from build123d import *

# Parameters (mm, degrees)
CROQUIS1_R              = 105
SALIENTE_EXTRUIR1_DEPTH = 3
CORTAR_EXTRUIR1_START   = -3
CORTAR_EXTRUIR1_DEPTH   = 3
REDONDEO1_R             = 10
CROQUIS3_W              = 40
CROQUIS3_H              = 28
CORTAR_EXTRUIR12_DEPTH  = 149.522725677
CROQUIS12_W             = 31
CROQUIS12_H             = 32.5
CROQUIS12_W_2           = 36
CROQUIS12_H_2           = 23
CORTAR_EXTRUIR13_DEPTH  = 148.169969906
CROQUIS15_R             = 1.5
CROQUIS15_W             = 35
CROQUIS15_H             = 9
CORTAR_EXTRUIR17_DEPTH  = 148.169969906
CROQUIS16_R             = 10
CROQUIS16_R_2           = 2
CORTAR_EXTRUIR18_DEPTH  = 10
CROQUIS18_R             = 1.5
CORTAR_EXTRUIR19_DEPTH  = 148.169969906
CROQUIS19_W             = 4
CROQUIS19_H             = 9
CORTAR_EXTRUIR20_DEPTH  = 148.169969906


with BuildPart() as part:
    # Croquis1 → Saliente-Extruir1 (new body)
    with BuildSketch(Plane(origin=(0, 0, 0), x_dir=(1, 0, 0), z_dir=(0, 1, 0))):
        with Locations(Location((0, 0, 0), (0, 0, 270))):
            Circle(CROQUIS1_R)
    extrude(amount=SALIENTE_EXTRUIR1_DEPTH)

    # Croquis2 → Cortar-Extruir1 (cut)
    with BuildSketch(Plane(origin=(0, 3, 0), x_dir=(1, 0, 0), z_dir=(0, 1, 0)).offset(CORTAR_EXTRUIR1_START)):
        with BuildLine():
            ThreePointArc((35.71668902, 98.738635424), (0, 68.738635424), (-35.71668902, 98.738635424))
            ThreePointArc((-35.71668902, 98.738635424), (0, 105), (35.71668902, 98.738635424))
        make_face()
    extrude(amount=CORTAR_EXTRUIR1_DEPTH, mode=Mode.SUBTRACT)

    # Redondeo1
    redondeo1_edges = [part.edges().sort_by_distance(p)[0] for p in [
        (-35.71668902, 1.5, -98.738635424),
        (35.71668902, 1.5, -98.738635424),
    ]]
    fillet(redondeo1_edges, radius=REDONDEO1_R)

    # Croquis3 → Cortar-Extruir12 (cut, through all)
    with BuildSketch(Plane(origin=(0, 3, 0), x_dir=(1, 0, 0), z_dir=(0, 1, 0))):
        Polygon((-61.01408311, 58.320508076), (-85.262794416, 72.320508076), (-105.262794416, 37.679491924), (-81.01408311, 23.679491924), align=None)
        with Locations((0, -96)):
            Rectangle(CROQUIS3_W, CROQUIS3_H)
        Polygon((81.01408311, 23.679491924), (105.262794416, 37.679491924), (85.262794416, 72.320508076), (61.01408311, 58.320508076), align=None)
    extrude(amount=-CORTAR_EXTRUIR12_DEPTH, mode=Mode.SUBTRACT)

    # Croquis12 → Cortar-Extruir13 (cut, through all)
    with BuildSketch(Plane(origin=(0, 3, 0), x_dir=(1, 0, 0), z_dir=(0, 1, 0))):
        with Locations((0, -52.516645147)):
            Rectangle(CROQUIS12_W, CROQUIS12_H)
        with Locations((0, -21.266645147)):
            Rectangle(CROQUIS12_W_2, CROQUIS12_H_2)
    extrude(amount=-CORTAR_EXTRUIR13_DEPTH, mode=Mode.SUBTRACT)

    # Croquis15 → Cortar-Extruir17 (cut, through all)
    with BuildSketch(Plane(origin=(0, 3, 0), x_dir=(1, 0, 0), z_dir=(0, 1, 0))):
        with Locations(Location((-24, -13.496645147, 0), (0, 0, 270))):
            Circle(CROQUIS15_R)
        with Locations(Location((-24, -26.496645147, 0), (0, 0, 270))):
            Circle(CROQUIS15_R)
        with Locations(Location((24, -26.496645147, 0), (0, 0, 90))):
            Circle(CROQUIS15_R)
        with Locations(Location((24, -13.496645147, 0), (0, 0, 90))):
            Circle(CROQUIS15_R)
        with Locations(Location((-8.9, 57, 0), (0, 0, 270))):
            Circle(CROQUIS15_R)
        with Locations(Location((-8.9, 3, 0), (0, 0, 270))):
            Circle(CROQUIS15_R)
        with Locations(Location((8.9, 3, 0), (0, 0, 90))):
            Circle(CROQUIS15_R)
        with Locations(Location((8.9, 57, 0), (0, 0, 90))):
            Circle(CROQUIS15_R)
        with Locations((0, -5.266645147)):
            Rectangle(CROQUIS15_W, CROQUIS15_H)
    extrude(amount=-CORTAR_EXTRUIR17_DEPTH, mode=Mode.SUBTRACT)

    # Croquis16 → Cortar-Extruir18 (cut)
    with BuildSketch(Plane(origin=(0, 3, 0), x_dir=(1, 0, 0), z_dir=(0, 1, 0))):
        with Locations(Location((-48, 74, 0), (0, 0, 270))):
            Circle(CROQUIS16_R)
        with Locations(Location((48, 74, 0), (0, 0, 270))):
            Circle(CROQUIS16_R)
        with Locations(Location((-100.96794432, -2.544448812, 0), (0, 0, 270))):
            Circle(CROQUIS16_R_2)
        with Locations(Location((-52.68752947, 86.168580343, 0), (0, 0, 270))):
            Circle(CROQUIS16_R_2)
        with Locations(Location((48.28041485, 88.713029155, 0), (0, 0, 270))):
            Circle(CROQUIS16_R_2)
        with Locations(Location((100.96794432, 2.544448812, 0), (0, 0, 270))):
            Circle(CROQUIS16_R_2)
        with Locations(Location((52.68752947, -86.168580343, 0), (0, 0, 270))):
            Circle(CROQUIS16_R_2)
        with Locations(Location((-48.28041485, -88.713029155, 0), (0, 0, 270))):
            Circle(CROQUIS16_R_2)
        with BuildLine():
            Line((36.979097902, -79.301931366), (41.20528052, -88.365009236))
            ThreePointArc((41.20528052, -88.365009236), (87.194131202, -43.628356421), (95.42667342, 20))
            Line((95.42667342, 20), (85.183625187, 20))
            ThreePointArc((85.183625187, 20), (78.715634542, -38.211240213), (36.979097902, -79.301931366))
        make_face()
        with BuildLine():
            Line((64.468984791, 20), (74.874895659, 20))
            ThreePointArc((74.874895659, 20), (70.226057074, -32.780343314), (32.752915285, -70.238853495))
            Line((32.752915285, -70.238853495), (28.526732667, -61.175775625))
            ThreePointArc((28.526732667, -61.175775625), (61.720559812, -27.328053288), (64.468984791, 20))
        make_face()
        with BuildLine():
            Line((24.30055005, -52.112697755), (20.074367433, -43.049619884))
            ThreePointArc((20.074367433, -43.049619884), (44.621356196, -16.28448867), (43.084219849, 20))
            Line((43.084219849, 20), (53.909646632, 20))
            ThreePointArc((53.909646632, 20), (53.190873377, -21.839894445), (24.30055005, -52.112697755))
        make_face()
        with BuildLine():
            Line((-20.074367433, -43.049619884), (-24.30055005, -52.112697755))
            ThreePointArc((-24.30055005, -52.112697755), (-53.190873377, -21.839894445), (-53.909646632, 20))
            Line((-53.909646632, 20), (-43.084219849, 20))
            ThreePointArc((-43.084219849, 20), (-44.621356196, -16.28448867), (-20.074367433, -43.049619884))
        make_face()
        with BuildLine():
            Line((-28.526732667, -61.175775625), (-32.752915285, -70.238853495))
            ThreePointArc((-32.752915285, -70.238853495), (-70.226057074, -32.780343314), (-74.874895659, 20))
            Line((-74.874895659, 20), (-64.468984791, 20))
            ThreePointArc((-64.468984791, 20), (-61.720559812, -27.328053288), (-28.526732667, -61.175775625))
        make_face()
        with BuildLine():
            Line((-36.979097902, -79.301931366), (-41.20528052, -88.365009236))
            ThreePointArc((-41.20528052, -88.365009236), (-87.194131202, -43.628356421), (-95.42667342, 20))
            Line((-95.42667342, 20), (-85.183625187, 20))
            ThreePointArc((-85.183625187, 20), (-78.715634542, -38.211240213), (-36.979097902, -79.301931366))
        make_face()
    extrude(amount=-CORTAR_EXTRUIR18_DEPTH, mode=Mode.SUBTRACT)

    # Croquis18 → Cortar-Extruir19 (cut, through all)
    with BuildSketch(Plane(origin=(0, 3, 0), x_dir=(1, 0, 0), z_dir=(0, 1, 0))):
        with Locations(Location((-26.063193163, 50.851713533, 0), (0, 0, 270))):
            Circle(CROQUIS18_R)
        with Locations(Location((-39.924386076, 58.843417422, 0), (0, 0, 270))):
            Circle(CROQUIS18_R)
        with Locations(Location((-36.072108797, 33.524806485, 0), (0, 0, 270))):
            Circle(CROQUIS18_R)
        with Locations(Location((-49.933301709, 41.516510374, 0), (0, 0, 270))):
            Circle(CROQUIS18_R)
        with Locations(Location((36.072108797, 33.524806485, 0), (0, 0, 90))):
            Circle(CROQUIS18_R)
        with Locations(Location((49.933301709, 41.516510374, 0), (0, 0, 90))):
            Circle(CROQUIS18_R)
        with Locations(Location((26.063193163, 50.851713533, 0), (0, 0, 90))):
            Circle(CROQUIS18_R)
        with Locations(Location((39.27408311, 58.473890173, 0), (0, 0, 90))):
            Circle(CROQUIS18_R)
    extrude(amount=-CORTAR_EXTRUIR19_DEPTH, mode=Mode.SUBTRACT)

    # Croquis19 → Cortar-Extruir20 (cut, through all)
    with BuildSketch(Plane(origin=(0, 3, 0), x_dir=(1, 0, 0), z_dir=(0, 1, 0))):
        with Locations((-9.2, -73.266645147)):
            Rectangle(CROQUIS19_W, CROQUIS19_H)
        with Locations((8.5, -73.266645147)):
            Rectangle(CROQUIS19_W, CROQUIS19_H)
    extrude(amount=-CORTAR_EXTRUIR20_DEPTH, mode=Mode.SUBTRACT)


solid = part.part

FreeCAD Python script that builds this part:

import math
import FreeCAD as App
import Part
import Sketcher
Q = App.Units.Quantity


def edges_at(feature, points):
    """Names of the edges that pass closest to the given points."""
    edges = feature.Shape.Edges
    near = lambda p: min(range(len(edges)), key=lambda i: edges[i].distToShape(Part.Vertex(*p))[0])
    return sorted({f"Edge{near(p) + 1}" for p in points})

doc = App.newDocument("Part")
params = doc.addObject("Spreadsheet::Sheet", "Params")
for row, (alias, value) in enumerate([
    ("sketch1_diameter", "210 mm"),
    ("pad1_length", "3 mm"),
    ("sketch2_radius", "105 mm"),
    ("pocket1_length", "3 mm"),
    ("fillet_radius", "10 mm"),
    ("sketch3_width", "40 mm"),
    ("sketch3_height", "28 mm"),
    ("sketch3_length", "28 mm"),
    ("sketch3_length2", "40 mm"),
    ("sketch4_width", "31 mm"),
    ("sketch4_width2", "36 mm"),
    ("sketch4_height", "23 mm"),
    ("sketch4_height2", "32.5 mm"),
    ("sketch5_diameter", "3 mm"),
    ("sketch5_width", "35 mm"),
    ("sketch5_height", "9 mm"),
    ("sketch6_diameter", "20 mm"),
    ("sketch6_diameter2", "4 mm"),
    ("sketch6_radius", "97.5 mm"),
    ("sketch6_radius2", "87.5 mm"),
    ("sketch6_radius3", "67.5 mm"),
    ("pocket5_length", "10 mm"),
    ("sketch7_diameter", "3 mm"),
    ("sketch8_width", "4 mm"),
    ("sketch8_height", "9 mm"),
], start=1):
    params.set(f"A{row}", alias)
    params.set(f"B{row}", "=" + value)
    params.setAlias(f"B{row}", alias)

body = doc.addObject("PartDesign::Body", "Body")

# Sketch on XZ plane
sketch1 = body.newObject("Sketcher::SketchObject", "Sketch")
sketch1.AttachmentSupport = (doc.getObject("XZ_Plane"), [""])
sketch1.MapMode = "FlatFace"
sketch1.addGeometry(Part.Circle(App.Vector(0, 0, 0), App.Vector(0, 0, 1), 105), False)
sketch1.addConstraint([
    Sketcher.Constraint("Coincident", 0, 3, -1, 1),
    Sketcher.Constraint("Diameter", 0, Q("210 mm")),
])
sketch1.setExpression("Constraints[1]", "Params.sketch1_diameter")
pad1 = body.newObject("PartDesign::Pad", "Pad")
pad1.Profile = sketch1
pad1.setExpression("Length", "Params.pad1_length")
pad1.Reversed = True

# Sketch on XZ plane
sketch2 = body.newObject("Sketcher::SketchObject", "Sketch001")
sketch2.AttachmentSupport = (doc.getObject("XZ_Plane"), [""])
sketch2.MapMode = "FlatFace"
sketch2.addGeometry([
    Part.ArcOfCircle(Part.Circle(App.Vector(0, -105, 0), App.Vector(0, 0, 1), 36.261365), math.radians(9.943279), math.radians(170.056721)),
    Part.ArcOfCircle(Part.Circle(App.Vector(0, 0, 0), App.Vector(0, 0, 1), 105), math.radians(-109.886558), math.radians(-70.113442)),
], False)
sketch2.addConstraint([
    Sketcher.Constraint("Coincident", 0, 1, 1, 2),
    Sketcher.Constraint("Coincident", 1, 1, 0, 2),
    Sketcher.Constraint("Coincident", 1, 3, -1, 1),
    Sketcher.Constraint("PointOnObject", 0, 3, -2),
    Sketcher.Constraint("Radius", 1, Q("105 mm")),
    Sketcher.Constraint("DistanceY", 0, 3, -1, 1, Q("105 mm")),
    Sketcher.Constraint("Radius", 0, Q("36.261365 mm")),
])
sketch2.setExpression("Constraints[4]", "Params.sketch2_radius")
pocket1 = body.newObject("PartDesign::Pocket", "Pocket")
pocket1.Profile = sketch2
pocket1.setExpression("Length", "Params.pocket1_length")
doc.recompute()

fillet = body.newObject("PartDesign::Fillet", "Fillet")
fillet.Base = (pocket1, edges_at(pocket1, [(-35.717, 1.5, -98.739), (35.717, 1.5, -98.739)]))
fillet.setExpression("Radius", "Params.fillet_radius")

# Sketch on XZ plane
sketch3 = body.newObject("Sketcher::SketchObject", "Sketch002")
sketch3.AttachmentSupport = (doc.getObject("XZ_Plane"), [""])
sketch3.MapMode = "FlatFace"
sketch3.AttachmentOffset = App.Placement(App.Vector(0, 0, -3), App.Rotation())
sketch3.addGeometry([
    Part.LineSegment(App.Vector(-61.014083, -58.320508, 0), App.Vector(-85.262794, -72.320508, 0)),  # 0
    Part.LineSegment(App.Vector(-85.262794, -72.320508, 0), App.Vector(-105.262794, -37.679492, 0)),  # 1
    Part.LineSegment(App.Vector(-105.262794, -37.679492, 0), App.Vector(-81.014083, -23.679492, 0)),  # 2
    Part.LineSegment(App.Vector(-81.014083, -23.679492, 0), App.Vector(-61.014083, -58.320508, 0)),  # 3
    Part.LineSegment(App.Vector(-20, 82, 0), App.Vector(-20, 110, 0)),  # 4
    Part.LineSegment(App.Vector(-20, 110, 0), App.Vector(20, 110, 0)),  # 5
    Part.LineSegment(App.Vector(20, 110, 0), App.Vector(20, 82, 0)),  # 6
    Part.LineSegment(App.Vector(20, 82, 0), App.Vector(-20, 82, 0)),  # 7
    Part.LineSegment(App.Vector(81.014083, -23.679492, 0), App.Vector(105.262794, -37.679492, 0)),  # 8
    Part.LineSegment(App.Vector(105.262794, -37.679492, 0), App.Vector(85.262794, -72.320508, 0)),  # 9
    Part.LineSegment(App.Vector(85.262794, -72.320508, 0), App.Vector(61.014083, -58.320508, 0)),  # 10
    Part.LineSegment(App.Vector(61.014083, -58.320508, 0), App.Vector(81.014083, -23.679492, 0)),  # 11
], False)
sketch3.addConstraint([
    Sketcher.Constraint("Coincident", 0, 2, 1, 1),
    Sketcher.Constraint("Coincident", 1, 2, 2, 1),
    Sketcher.Constraint("Coincident", 2, 2, 3, 1),
    Sketcher.Constraint("Coincident", 3, 2, 0, 1),
    Sketcher.Constraint("Coincident", 4, 2, 5, 1),
    Sketcher.Constraint("Coincident", 5, 2, 6, 1),
    Sketcher.Constraint("Coincident", 6, 2, 7, 1),
    Sketcher.Constraint("Coincident", 7, 2, 4, 1),
    Sketcher.Constraint("Coincident", 8, 2, 9, 1),
    Sketcher.Constraint("Coincident", 9, 2, 10, 1),
    Sketcher.Constraint("Coincident", 10, 2, 11, 1),
    Sketcher.Constraint("Coincident", 11, 2, 8, 1),
    Sketcher.Constraint("Vertical", 4),
    Sketcher.Constraint("Horizontal", 5),
    Sketcher.Constraint("Vertical", 6),
    Sketcher.Constraint("Horizontal", 7),
    Sketcher.Constraint("Symmetric", 1, 2, 8, 2, -2),
    Sketcher.Constraint("Symmetric", 0, 2, 9, 2, -2),
    Sketcher.Constraint("Symmetric", 3, 2, 10, 2, -2),
    Sketcher.Constraint("Symmetric", 2, 2, 11, 2, -2),
    Sketcher.Constraint("Perpendicular", 0, 1),
    Sketcher.Constraint("Perpendicular", 1, 2),
    Sketcher.Constraint("Perpendicular", 2, 3),
    Sketcher.Constraint("DistanceX", 5, 1, 5, 2, Q("40 mm")),
    Sketcher.Constraint("DistanceY", 4, 1, 4, 2, Q("28 mm")),
    Sketcher.Constraint("Angle", 0, Q("-150 deg")),
    Sketcher.Constraint("Distance", 0, Q("28 mm")),
    Sketcher.Constraint("Distance", 1, Q("40 mm")),
    Sketcher.Constraint("DistanceX", 4, 2, -1, 1, Q("20 mm")),
    Sketcher.Constraint("DistanceY", -1, 1, 4, 2, Q("110 mm")),
    Sketcher.Constraint("DistanceY", 0, 2, -1, 1, Q("72.320508 mm")),
    Sketcher.Constraint("DistanceX", 0, 2, 9, 2, Q("170.525589 mm")),
])
sketch3.setExpression("Constraints[23]", "Params.sketch3_width")
sketch3.setExpression("Constraints[24]", "Params.sketch3_height")
sketch3.setExpression("Constraints[26]", "Params.sketch3_length")
sketch3.setExpression("Constraints[27]", "Params.sketch3_length2")
pocket2 = body.newObject("PartDesign::Pocket", "Pocket001")
pocket2.Profile = sketch3
pocket2.Type = "ThroughAll"
pocket2.Reversed = True

# Sketch on XZ plane
sketch4 = body.newObject("Sketcher::SketchObject", "Sketch003")
sketch4.AttachmentSupport = (doc.getObject("XZ_Plane"), [""])
sketch4.MapMode = "FlatFace"
sketch4.AttachmentOffset = App.Placement(App.Vector(0, 0, -3), App.Rotation())
sketch4.addGeometry([
    Part.LineSegment(App.Vector(-15.5, 36.266645, 0), App.Vector(-15.5, 68.766645, 0)),  # 0
    Part.LineSegment(App.Vector(-15.5, 68.766645, 0), App.Vector(15.5, 68.766645, 0)),  # 1
    Part.LineSegment(App.Vector(15.5, 68.766645, 0), App.Vector(15.5, 36.266645, 0)),  # 2
    Part.LineSegment(App.Vector(15.5, 36.266645, 0), App.Vector(-15.5, 36.266645, 0)),  # 3
    Part.LineSegment(App.Vector(-18, 9.766645, 0), App.Vector(-18, 32.766645, 0)),  # 4
    Part.LineSegment(App.Vector(-18, 32.766645, 0), App.Vector(18, 32.766645, 0)),  # 5
    Part.LineSegment(App.Vector(18, 32.766645, 0), App.Vector(18, 9.766645, 0)),  # 6
    Part.LineSegment(App.Vector(18, 9.766645, 0), App.Vector(-18, 9.766645, 0)),  # 7
], False)
sketch4.addConstraint([
    Sketcher.Constraint("Coincident", 0, 2, 1, 1),
    Sketcher.Constraint("Coincident", 1, 2, 2, 1),
    Sketcher.Constraint("Coincident", 2, 2, 3, 1),
    Sketcher.Constraint("Coincident", 3, 2, 0, 1),
    Sketcher.Constraint("Coincident", 4, 2, 5, 1),
    Sketcher.Constraint("Coincident", 5, 2, 6, 1),
    Sketcher.Constraint("Coincident", 6, 2, 7, 1),
    Sketcher.Constraint("Coincident", 7, 2, 4, 1),
    Sketcher.Constraint("Vertical", 0),
    Sketcher.Constraint("Horizontal", 1),
    Sketcher.Constraint("Vertical", 2),
    Sketcher.Constraint("Horizontal", 3),
    Sketcher.Constraint("Vertical", 4),
    Sketcher.Constraint("Horizontal", 5),
    Sketcher.Constraint("Vertical", 6),
    Sketcher.Constraint("Horizontal", 7),
    Sketcher.Constraint("DistanceX", 1, 1, 1, 2, Q("31 mm")),
    Sketcher.Constraint("DistanceX", 5, 1, 5, 2, Q("36 mm")),
    Sketcher.Constraint("DistanceY", 4, 1, 4, 2, Q("23 mm")),
    Sketcher.Constraint("DistanceY", 0, 1, 0, 2, Q("32.5 mm")),
    Sketcher.Constraint("DistanceX", 4, 2, -1, 1, Q("18 mm")),
    Sketcher.Constraint("DistanceY", 4, 2, 0, 2, Q("36 mm")),
    Sketcher.Constraint("DistanceX", 0, 2, -1, 1, Q("15.5 mm")),
    Sketcher.Constraint("DistanceY", -1, 1, 0, 2, Q("68.766645 mm")),
])
sketch4.setExpression("Constraints[16]", "Params.sketch4_width")
sketch4.setExpression("Constraints[17]", "Params.sketch4_width2")
sketch4.setExpression("Constraints[18]", "Params.sketch4_height")
sketch4.setExpression("Constraints[19]", "Params.sketch4_height2")
pocket3 = body.newObject("PartDesign::Pocket", "Pocket002")
pocket3.Profile = sketch4
pocket3.Type = "ThroughAll"
pocket3.Reversed = True

# Sketch on XZ plane
sketch5 = body.newObject("Sketcher::SketchObject", "Sketch004")
sketch5.AttachmentSupport = (doc.getObject("XZ_Plane"), [""])
sketch5.MapMode = "FlatFace"
sketch5.AttachmentOffset = App.Placement(App.Vector(0, 0, -3), App.Rotation())
sketch5.addGeometry([
    Part.Circle(App.Vector(-24, 13.496645, 0), App.Vector(0, 0, 1), 1.5),  # 0
    Part.Circle(App.Vector(-24, 26.496645, 0), App.Vector(0, 0, 1), 1.5),  # 1
    Part.Circle(App.Vector(24, 26.496645, 0), App.Vector(0, 0, 1), 1.5),  # 2
    Part.Circle(App.Vector(24, 13.496645, 0), App.Vector(0, 0, 1), 1.5),  # 3
    Part.Circle(App.Vector(-8.9, -57, 0), App.Vector(0, 0, 1), 1.5),  # 4
    Part.Circle(App.Vector(-8.9, -3, 0), App.Vector(0, 0, 1), 1.5),  # 5
    Part.Circle(App.Vector(8.9, -3, 0), App.Vector(0, 0, 1), 1.5),  # 6
    Part.Circle(App.Vector(8.9, -57, 0), App.Vector(0, 0, 1), 1.5),  # 7
    Part.LineSegment(App.Vector(-17.5, 0.766645, 0), App.Vector(-17.5, 9.766645, 0)),  # 8
    Part.LineSegment(App.Vector(-17.5, 9.766645, 0), App.Vector(17.5, 9.766645, 0)),  # 9
    Part.LineSegment(App.Vector(17.5, 9.766645, 0), App.Vector(17.5, 0.766645, 0)),  # 10
    Part.LineSegment(App.Vector(17.5, 0.766645, 0), App.Vector(-17.5, 0.766645, 0)),  # 11
], False)
sketch5.addConstraint([
    Sketcher.Constraint("Coincident", 8, 2, 9, 1),
    Sketcher.Constraint("Coincident", 9, 2, 10, 1),
    Sketcher.Constraint("Coincident", 10, 2, 11, 1),
    Sketcher.Constraint("Coincident", 11, 2, 8, 1),
    Sketcher.Constraint("Vertical", 8),
    Sketcher.Constraint("Horizontal", 9),
    Sketcher.Constraint("Vertical", 10),
    Sketcher.Constraint("Horizontal", 11),
    Sketcher.Constraint("Equal", 0, 1),
    Sketcher.Constraint("Equal", 1, 2),
    Sketcher.Constraint("Equal", 2, 3),
    Sketcher.Constraint("Equal", 3, 4),
    Sketcher.Constraint("Equal", 4, 5),
    Sketcher.Constraint("Equal", 5, 6),
    Sketcher.Constraint("Equal", 6, 7),
    Sketcher.Constraint("Symmetric", 1, 3, 2, 3, -2),
    Sketcher.Constraint("Symmetric", 0, 3, 3, 3, -2),
    Sketcher.Constraint("Symmetric", 5, 3, 6, 3, -2),
    Sketcher.Constraint("Symmetric", 4, 3, 7, 3, -2),
    Sketcher.Constraint("Vertical", 0, 3, 1, 3),
    Sketcher.Constraint("Vertical", 4, 3, 5, 3),
    Sketcher.Constraint("Diameter", 0, Q("3 mm")),
    Sketcher.Constraint("DistanceX", 9, 1, 9, 2, Q("35 mm")),
    Sketcher.Constraint("DistanceY", 8, 1, 8, 2, Q("9 mm")),
    Sketcher.Constraint("DistanceX", 0, 3, -1, 1, Q("24 mm")),
    Sketcher.Constraint("DistanceY", 4, 3, -1, 1, Q("57 mm")),
    Sketcher.Constraint("DistanceY", 5, 3, -1, 1, Q("3 mm")),
    Sketcher.Constraint("DistanceY", 0, 3, 1, 3, Q("13 mm")),
    Sketcher.Constraint("DistanceX", 4, 3, -1, 1, Q("8.9 mm")),
    Sketcher.Constraint("DistanceX", 8, 2, -1, 1, Q("17.5 mm")),
    Sketcher.Constraint("DistanceY", 8, 2, 0, 3, Q("3.73 mm")),
    Sketcher.Constraint("DistanceY", -1, 1, 0, 3, Q("13.496645 mm")),
])
sketch5.setExpression("Constraints[21]", "Params.sketch5_diameter")
sketch5.setExpression("Constraints[22]", "Params.sketch5_width")
sketch5.setExpression("Constraints[23]", "Params.sketch5_height")
pocket4 = body.newObject("PartDesign::Pocket", "Pocket003")
pocket4.Profile = sketch5
pocket4.Type = "ThroughAll"
pocket4.Reversed = True

# Sketch on XZ plane
sketch6 = body.newObject("Sketcher::SketchObject", "Sketch005")
sketch6.AttachmentSupport = (doc.getObject("XZ_Plane"), [""])
sketch6.MapMode = "FlatFace"
sketch6.AttachmentOffset = App.Placement(App.Vector(0, 0, -3), App.Rotation())
sketch6.addGeometry([
    Part.Circle(App.Vector(-48, -74, 0), App.Vector(0, 0, 1), 10),  # 0
    Part.Circle(App.Vector(48, -74, 0), App.Vector(0, 0, 1), 10),  # 1
    Part.Circle(App.Vector(-100.967944, 2.544449, 0), App.Vector(0, 0, 1), 2),  # 2
    Part.Circle(App.Vector(-52.687529, -86.16858, 0), App.Vector(0, 0, 1), 2),  # 3
    Part.Circle(App.Vector(48.280415, -88.713029, 0), App.Vector(0, 0, 1), 2),  # 4
    Part.Circle(App.Vector(100.967944, -2.544449, 0), App.Vector(0, 0, 1), 2),  # 5
    Part.Circle(App.Vector(52.687529, 86.16858, 0), App.Vector(0, 0, 1), 2),  # 6
    Part.Circle(App.Vector(-48.280415, 88.713029, 0), App.Vector(0, 0, 1), 2),  # 7
    Part.LineSegment(App.Vector(36.979098, 79.301931, 0), App.Vector(41.205281, 88.365009, 0)),  # 8
    Part.ArcOfCircle(Part.Circle(App.Vector(0, 0, 0), App.Vector(0, 0, 1), 97.5), math.radians(-11.837004), math.radians(65)),  # 9
    Part.LineSegment(App.Vector(95.426673, -20, 0), App.Vector(85.183625, -20, 0)),  # 10
    Part.ArcOfCircle(Part.Circle(App.Vector(0, 0, 0), App.Vector(0, 0, 1), 87.5), math.radians(-13.21298), math.radians(65)),  # 11
    Part.LineSegment(App.Vector(74.874896, -20, 0), App.Vector(64.468985, -20, 0)),  # 12
    Part.ArcOfCircle(Part.Circle(App.Vector(0, 0, 0), App.Vector(0, 0, 1), 67.5), math.radians(-17.235285), math.radians(65)),  # 13
    Part.LineSegment(App.Vector(28.526733, 61.175776, 0), App.Vector(32.752915, 70.238853, 0)),  # 14
    Part.ArcOfCircle(Part.Circle(App.Vector(0, 0, 0), App.Vector(0, 0, 1), 77.5), math.radians(-14.955248), math.radians(65)),  # 15
    Part.LineSegment(App.Vector(20.074367, 43.04962, 0), App.Vector(24.30055, 52.112698, 0)),  # 16
    Part.ArcOfCircle(Part.Circle(App.Vector(0, 0, 0), App.Vector(0, 0, 1), 57.5), math.radians(-20.354406), math.radians(65)),  # 17
    Part.LineSegment(App.Vector(53.909647, -20, 0), App.Vector(43.08422, -20, 0)),  # 18
    Part.ArcOfCircle(Part.Circle(App.Vector(0, 0, 0), App.Vector(0, 0, 1), 47.5), math.radians(-24.901062), math.radians(65)),  # 19
    Part.LineSegment(App.Vector(-24.30055, 52.112698, 0), App.Vector(-20.074367, 43.04962, 0)),  # 20
    Part.ArcOfCircle(Part.Circle(App.Vector(0, 0, 0), App.Vector(0, 0, 1), 47.5), math.radians(115), math.radians(204.901062)),  # 21
    Part.LineSegment(App.Vector(-43.08422, -20, 0), App.Vector(-53.909647, -20, 0)),  # 22
    Part.ArcOfCircle(Part.Circle(App.Vector(0, 0, 0), App.Vector(0, 0, 1), 57.5), math.radians(115), math.radians(200.354406)),  # 23
    Part.LineSegment(App.Vector(-32.752915, 70.238853, 0), App.Vector(-28.526733, 61.175776, 0)),  # 24
    Part.ArcOfCircle(Part.Circle(App.Vector(0, 0, 0), App.Vector(0, 0, 1), 67.5), math.radians(115), math.radians(197.235285)),  # 25
    Part.LineSegment(App.Vector(-64.468985, -20, 0), App.Vector(-74.874896, -20, 0)),  # 26
    Part.ArcOfCircle(Part.Circle(App.Vector(0, 0, 0), App.Vector(0, 0, 1), 77.5), math.radians(115), math.radians(194.955248)),  # 27
    Part.LineSegment(App.Vector(-41.205281, 88.365009, 0), App.Vector(-36.979098, 79.301931, 0)),  # 28
    Part.ArcOfCircle(Part.Circle(App.Vector(0, 0, 0), App.Vector(0, 0, 1), 87.5), math.radians(115), math.radians(193.21298)),  # 29
    Part.LineSegment(App.Vector(-85.183625, -20, 0), App.Vector(-95.426673, -20, 0)),  # 30
    Part.ArcOfCircle(Part.Circle(App.Vector(0, 0, 0), App.Vector(0, 0, 1), 97.5), math.radians(115), math.radians(191.837004)),  # 31
], False)
sketch6.addConstraint([
    Sketcher.Constraint("Coincident", 8, 2, 9, 2),
    Sketcher.Constraint("Coincident", 9, 1, 10, 1),
    Sketcher.Constraint("Coincident", 10, 2, 11, 1),
    Sketcher.Constraint("Coincident", 11, 2, 8, 1),
    Sketcher.Constraint("Coincident", 12, 2, 13, 1),
    Sketcher.Constraint("Coincident", 13, 2, 14, 1),
    Sketcher.Constraint("Coincident", 14, 2, 15, 2),
    Sketcher.Constraint("Coincident", 15, 1, 12, 1),
    Sketcher.Constraint("Coincident", 16, 2, 17, 2),
    Sketcher.Constraint("Coincident", 17, 1, 18, 1),
    Sketcher.Constraint("Coincident", 18, 2, 19, 1),
    Sketcher.Constraint("Coincident", 19, 2, 16, 1),
    Sketcher.Constraint("Coincident", 20, 2, 21, 1),
    Sketcher.Constraint("Coincident", 21, 2, 22, 1),
    Sketcher.Constraint("Coincident", 22, 2, 23, 2),
    Sketcher.Constraint("Coincident", 23, 1, 20, 1),
    Sketcher.Constraint("Coincident", 24, 2, 25, 1),
    Sketcher.Constraint("Coincident", 25, 2, 26, 1),
    Sketcher.Constraint("Coincident", 26, 2, 27, 2),
    Sketcher.Constraint("Coincident", 27, 1, 24, 1),
    Sketcher.Constraint("Coincident", 28, 2, 29, 1),
    Sketcher.Constraint("Coincident", 29, 2, 30, 1),
    Sketcher.Constraint("Coincident", 30, 2, 31, 2),
    Sketcher.Constraint("Coincident", 31, 1, 28, 1),
    Sketcher.Constraint("Horizontal", 10),
    Sketcher.Constraint("Horizontal", 12),
    Sketcher.Constraint("Horizontal", 18),
    Sketcher.Constraint("Horizontal", 22),
    Sketcher.Constraint("Horizontal", 26),
    Sketcher.Constraint("Horizontal", 30),
    Sketcher.Constraint("Coincident", 9, 3, -1, 1),
    Sketcher.Constraint("Coincident", 11, 3, -1, 1),
    Sketcher.Constraint("Coincident", 13, 3, -1, 1),
    Sketcher.Constraint("Coincident", 15, 3, -1, 1),
    Sketcher.Constraint("Coincident", 17, 3, -1, 1),
    Sketcher.Constraint("Coincident", 19, 3, -1, 1),
    Sketcher.Constraint("Coincident", 21, 3, -1, 1),
    Sketcher.Constraint("Coincident", 23, 3, -1, 1),
    Sketcher.Constraint("Coincident", 25, 3, -1, 1),
    Sketcher.Constraint("Coincident", 27, 3, -1, 1),
    Sketcher.Constraint("Coincident", 29, 3, -1, 1),
    Sketcher.Constraint("Coincident", 31, 3, -1, 1),
    Sketcher.Constraint("Equal", 0, 1),
    Sketcher.Constraint("Equal", 2, 3),
    Sketcher.Constraint("Equal", 3, 4),
    Sketcher.Constraint("Equal", 4, 5),
    Sketcher.Constraint("Equal", 5, 6),
    Sketcher.Constraint("Equal", 6, 7),
    Sketcher.Constraint("Equal", 19, 21),
    Sketcher.Constraint("Equal", 17, 23),
    Sketcher.Constraint("Equal", 13, 25),
    Sketcher.Constraint("Equal", 15, 27),
    Sketcher.Constraint("Equal", 11, 29),
    Sketcher.Constraint("Equal", 9, 31),
    Sketcher.Constraint("Symmetric", 2, 3, 5, 3, -1, 1),
    Sketcher.Constraint("Symmetric", 3, 3, 6, 3, -1, 1),
    Sketcher.Constraint("Symmetric", 4, 3, 7, 3, -1, 1),
    Sketcher.Constraint("Symmetric", 0, 3, 1, 3, -2),
    Sketcher.Constraint("Parallel", 8, 14),
    Sketcher.Constraint("Parallel", 14, 16),
    Sketcher.Constraint("Parallel", 20, 24),
    Sketcher.Constraint("Parallel", 24, 28),
    Sketcher.Constraint("Horizontal", 10, 2, 12, 2),
    Sketcher.Constraint("Horizontal", 15, 1, 17, 1),
    Sketcher.Constraint("Horizontal", 19, 2, 20, 2),
    Sketcher.Constraint("Horizontal", 18, 2, 21, 2),
    Sketcher.Constraint("Horizontal", 16, 2, 23, 1),
    Sketcher.Constraint("Horizontal", 13, 2, 24, 2),
    Sketcher.Constraint("Horizontal", 22, 2, 25, 2),
    Sketcher.Constraint("Horizontal", 11, 2, 28, 2),
    Sketcher.Constraint("Horizontal", 26, 2, 29, 2),
    Sketcher.Constraint("Equal", 8, 14),
    Sketcher.Constraint("Equal", 14, 16),
    Sketcher.Constraint("Diameter", 0, Q("20 mm")),
    Sketcher.Constraint("Diameter", 2, Q("4 mm")),
    Sketcher.Constraint("Radius", 9, Q("97.5 mm")),
    Sketcher.Constraint("Radius", 11, Q("87.5 mm")),
    Sketcher.Constraint("Radius", 13, Q("67.5 mm")),
    Sketcher.Constraint("Radius", 17, Q("57.5 mm")),
    Sketcher.Constraint("Angle", 8, Q("65 deg")),
    Sketcher.Constraint("DistanceX", 0, 3, -1, 1, Q("48 mm")),
    Sketcher.Constraint("DistanceY", 0, 3, -1, 1, Q("74 mm")),
    Sketcher.Constraint("DistanceY", 9, 1, -1, 1, Q("20 mm")),
    Sketcher.Constraint("DistanceX", 23, 1, 16, 2, Q("48.6011 mm")),
    Sketcher.Constraint("DistanceX", 24, 2, 19, 2, Q("48.6011 mm")),
    Sketcher.Constraint("DistanceX", 7, 3, 27, 1, Q("15.5275 mm")),
    Sketcher.Constraint("DistanceY", -1, 1, 2, 3, Q("2.544449 mm")),
    Sketcher.Constraint("DistanceX", 3, 3, -1, 1, Q("52.687529 mm")),
    Sketcher.Constraint("DistanceY", 3, 3, -1, 1, Q("86.16858 mm")),
    Sketcher.Constraint("DistanceY", 4, 3, -1, 1, Q("88.713029 mm")),
    Sketcher.Constraint("DistanceX", -1, 1, 8, 2, Q("41.205281 mm")),
    Sketcher.Constraint("DistanceX", 2, 3, 4, 3, Q("149.248359 mm")),
])
sketch6.setExpression("Constraints[73]", "Params.sketch6_diameter")
sketch6.setExpression("Constraints[74]", "Params.sketch6_diameter2")
sketch6.setExpression("Constraints[75]", "Params.sketch6_radius")
sketch6.setExpression("Constraints[76]", "Params.sketch6_radius2")
sketch6.setExpression("Constraints[77]", "Params.sketch6_radius3")
pocket5 = body.newObject("PartDesign::Pocket", "Pocket004")
pocket5.Profile = sketch6
pocket5.setExpression("Length", "Params.pocket5_length")
pocket5.Reversed = True

# Sketch on XZ plane
sketch7 = body.newObject("Sketcher::SketchObject", "Sketch006")
sketch7.AttachmentSupport = (doc.getObject("XZ_Plane"), [""])
sketch7.MapMode = "FlatFace"
sketch7.AttachmentOffset = App.Placement(App.Vector(0, 0, -3), App.Rotation())
sketch7.addGeometry([
    Part.Circle(App.Vector(-26.063193, -50.851714, 0), App.Vector(0, 0, 1), 1.5),  # 0
    Part.Circle(App.Vector(-39.924386, -58.843417, 0), App.Vector(0, 0, 1), 1.5),  # 1
    Part.Circle(App.Vector(-36.072109, -33.524806, 0), App.Vector(0, 0, 1), 1.5),  # 2
    Part.Circle(App.Vector(-49.933302, -41.51651, 0), App.Vector(0, 0, 1), 1.5),  # 3
    Part.Circle(App.Vector(36.072109, -33.524806, 0), App.Vector(0, 0, 1), 1.5),  # 4
    Part.Circle(App.Vector(49.933302, -41.51651, 0), App.Vector(0, 0, 1), 1.5),  # 5
    Part.Circle(App.Vector(26.063193, -50.851714, 0), App.Vector(0, 0, 1), 1.5),  # 6
    Part.Circle(App.Vector(39.274083, -58.47389, 0), App.Vector(0, 0, 1), 1.5),  # 7
], False)
sketch7.addConstraint([
    Sketcher.Constraint("Equal", 0, 1),
    Sketcher.Constraint("Equal", 1, 2),
    Sketcher.Constraint("Equal", 2, 3),
    Sketcher.Constraint("Equal", 3, 4),
    Sketcher.Constraint("Equal", 4, 5),
    Sketcher.Constraint("Equal", 5, 6),
    Sketcher.Constraint("Equal", 6, 7),
    Sketcher.Constraint("Symmetric", 2, 3, 4, 3, -2),
    Sketcher.Constraint("Symmetric", 3, 3, 5, 3, -2),
    Sketcher.Constraint("Symmetric", 0, 3, 6, 3, -2),
    Sketcher.Constraint("Diameter", 0, Q("3 mm")),
    Sketcher.Constraint("DistanceX", 3, 3, -1, 1, Q("49.933302 mm")),
    Sketcher.Constraint("DistanceX", 0, 3, 4, 3, Q("62.135302 mm")),
    Sketcher.Constraint("DistanceX", 2, 3, -1, 1, Q("36.072109 mm")),
    Sketcher.Constraint("DistanceY", 3, 3, -1, 1, Q("41.51651 mm")),
    Sketcher.Constraint("DistanceY", 7, 3, -1, 1, Q("58.47389 mm")),
    Sketcher.Constraint("DistanceY", 1, 3, 2, 3, Q("25.318611 mm")),
    Sketcher.Constraint("DistanceX", 1, 3, 6, 3, Q("65.987579 mm")),
    Sketcher.Constraint("DistanceX", 6, 3, 7, 3, Q("13.21089 mm")),
    Sketcher.Constraint("DistanceY", 0, 3, -1, 1, Q("50.851714 mm")),
    Sketcher.Constraint("DistanceY", 1, 3, -1, 1, Q("58.843417 mm")),
])
sketch7.setExpression("Constraints[10]", "Params.sketch7_diameter")
pocket6 = body.newObject("PartDesign::Pocket", "Pocket005")
pocket6.Profile = sketch7
pocket6.Type = "ThroughAll"
pocket6.Reversed = True

# Sketch on XZ plane
sketch8 = body.newObject("Sketcher::SketchObject", "Sketch007")
sketch8.AttachmentSupport = (doc.getObject("XZ_Plane"), [""])
sketch8.MapMode = "FlatFace"
sketch8.AttachmentOffset = App.Placement(App.Vector(0, 0, -3), App.Rotation())
sketch8.addGeometry([
    Part.LineSegment(App.Vector(-11.2, 68.766645, 0), App.Vector(-11.2, 77.766645, 0)),  # 0
    Part.LineSegment(App.Vector(-11.2, 77.766645, 0), App.Vector(-7.2, 77.766645, 0)),  # 1
    Part.LineSegment(App.Vector(-7.2, 77.766645, 0), App.Vector(-7.2, 68.766645, 0)),  # 2
    Part.LineSegment(App.Vector(-7.2, 68.766645, 0), App.Vector(-11.2, 68.766645, 0)),  # 3
    Part.LineSegment(App.Vector(6.5, 68.766645, 0), App.Vector(6.5, 77.766645, 0)),  # 4
    Part.LineSegment(App.Vector(6.5, 77.766645, 0), App.Vector(10.5, 77.766645, 0)),  # 5
    Part.LineSegment(App.Vector(10.5, 77.766645, 0), App.Vector(10.5, 68.766645, 0)),  # 6
    Part.LineSegment(App.Vector(10.5, 68.766645, 0), App.Vector(6.5, 68.766645, 0)),  # 7
], False)
sketch8.addConstraint([
    Sketcher.Constraint("Coincident", 0, 2, 1, 1),
    Sketcher.Constraint("Coincident", 1, 2, 2, 1),
    Sketcher.Constraint("Coincident", 2, 2, 3, 1),
    Sketcher.Constraint("Coincident", 3, 2, 0, 1),
    Sketcher.Constraint("Coincident", 4, 2, 5, 1),
    Sketcher.Constraint("Coincident", 5, 2, 6, 1),
    Sketcher.Constraint("Coincident", 6, 2, 7, 1),
    Sketcher.Constraint("Coincident", 7, 2, 4, 1),
    Sketcher.Constraint("Vertical", 0),
    Sketcher.Constraint("Horizontal", 1),
    Sketcher.Constraint("Vertical", 2),
    Sketcher.Constraint("Horizontal", 3),
    Sketcher.Constraint("Vertical", 4),
    Sketcher.Constraint("Horizontal", 5),
    Sketcher.Constraint("Vertical", 6),
    Sketcher.Constraint("Horizontal", 7),
    Sketcher.Constraint("Horizontal", 1, 2, 4, 2),
    Sketcher.Constraint("Horizontal", 3, 2, 6, 2),
    Sketcher.Constraint("Equal", 3, 5),
    Sketcher.Constraint("DistanceX", 1, 1, 1, 2, Q("4 mm")),
    Sketcher.Constraint("DistanceY", 0, 1, 0, 2, Q("9 mm")),
    Sketcher.Constraint("DistanceX", 0, 2, -1, 1, Q("11.2 mm")),
    Sketcher.Constraint("DistanceX", -1, 1, 4, 2, Q("6.5 mm")),
    Sketcher.Constraint("DistanceY", -1, 1, 0, 2, Q("77.766645 mm")),
])
sketch8.setExpression("Constraints[19]", "Params.sketch8_width")
sketch8.setExpression("Constraints[20]", "Params.sketch8_height")
pocket7 = body.newObject("PartDesign::Pocket", "Pocket006")
pocket7.Profile = sketch8
pocket7.Type = "ThroughAll"
pocket7.Reversed = True

doc.recompute()
